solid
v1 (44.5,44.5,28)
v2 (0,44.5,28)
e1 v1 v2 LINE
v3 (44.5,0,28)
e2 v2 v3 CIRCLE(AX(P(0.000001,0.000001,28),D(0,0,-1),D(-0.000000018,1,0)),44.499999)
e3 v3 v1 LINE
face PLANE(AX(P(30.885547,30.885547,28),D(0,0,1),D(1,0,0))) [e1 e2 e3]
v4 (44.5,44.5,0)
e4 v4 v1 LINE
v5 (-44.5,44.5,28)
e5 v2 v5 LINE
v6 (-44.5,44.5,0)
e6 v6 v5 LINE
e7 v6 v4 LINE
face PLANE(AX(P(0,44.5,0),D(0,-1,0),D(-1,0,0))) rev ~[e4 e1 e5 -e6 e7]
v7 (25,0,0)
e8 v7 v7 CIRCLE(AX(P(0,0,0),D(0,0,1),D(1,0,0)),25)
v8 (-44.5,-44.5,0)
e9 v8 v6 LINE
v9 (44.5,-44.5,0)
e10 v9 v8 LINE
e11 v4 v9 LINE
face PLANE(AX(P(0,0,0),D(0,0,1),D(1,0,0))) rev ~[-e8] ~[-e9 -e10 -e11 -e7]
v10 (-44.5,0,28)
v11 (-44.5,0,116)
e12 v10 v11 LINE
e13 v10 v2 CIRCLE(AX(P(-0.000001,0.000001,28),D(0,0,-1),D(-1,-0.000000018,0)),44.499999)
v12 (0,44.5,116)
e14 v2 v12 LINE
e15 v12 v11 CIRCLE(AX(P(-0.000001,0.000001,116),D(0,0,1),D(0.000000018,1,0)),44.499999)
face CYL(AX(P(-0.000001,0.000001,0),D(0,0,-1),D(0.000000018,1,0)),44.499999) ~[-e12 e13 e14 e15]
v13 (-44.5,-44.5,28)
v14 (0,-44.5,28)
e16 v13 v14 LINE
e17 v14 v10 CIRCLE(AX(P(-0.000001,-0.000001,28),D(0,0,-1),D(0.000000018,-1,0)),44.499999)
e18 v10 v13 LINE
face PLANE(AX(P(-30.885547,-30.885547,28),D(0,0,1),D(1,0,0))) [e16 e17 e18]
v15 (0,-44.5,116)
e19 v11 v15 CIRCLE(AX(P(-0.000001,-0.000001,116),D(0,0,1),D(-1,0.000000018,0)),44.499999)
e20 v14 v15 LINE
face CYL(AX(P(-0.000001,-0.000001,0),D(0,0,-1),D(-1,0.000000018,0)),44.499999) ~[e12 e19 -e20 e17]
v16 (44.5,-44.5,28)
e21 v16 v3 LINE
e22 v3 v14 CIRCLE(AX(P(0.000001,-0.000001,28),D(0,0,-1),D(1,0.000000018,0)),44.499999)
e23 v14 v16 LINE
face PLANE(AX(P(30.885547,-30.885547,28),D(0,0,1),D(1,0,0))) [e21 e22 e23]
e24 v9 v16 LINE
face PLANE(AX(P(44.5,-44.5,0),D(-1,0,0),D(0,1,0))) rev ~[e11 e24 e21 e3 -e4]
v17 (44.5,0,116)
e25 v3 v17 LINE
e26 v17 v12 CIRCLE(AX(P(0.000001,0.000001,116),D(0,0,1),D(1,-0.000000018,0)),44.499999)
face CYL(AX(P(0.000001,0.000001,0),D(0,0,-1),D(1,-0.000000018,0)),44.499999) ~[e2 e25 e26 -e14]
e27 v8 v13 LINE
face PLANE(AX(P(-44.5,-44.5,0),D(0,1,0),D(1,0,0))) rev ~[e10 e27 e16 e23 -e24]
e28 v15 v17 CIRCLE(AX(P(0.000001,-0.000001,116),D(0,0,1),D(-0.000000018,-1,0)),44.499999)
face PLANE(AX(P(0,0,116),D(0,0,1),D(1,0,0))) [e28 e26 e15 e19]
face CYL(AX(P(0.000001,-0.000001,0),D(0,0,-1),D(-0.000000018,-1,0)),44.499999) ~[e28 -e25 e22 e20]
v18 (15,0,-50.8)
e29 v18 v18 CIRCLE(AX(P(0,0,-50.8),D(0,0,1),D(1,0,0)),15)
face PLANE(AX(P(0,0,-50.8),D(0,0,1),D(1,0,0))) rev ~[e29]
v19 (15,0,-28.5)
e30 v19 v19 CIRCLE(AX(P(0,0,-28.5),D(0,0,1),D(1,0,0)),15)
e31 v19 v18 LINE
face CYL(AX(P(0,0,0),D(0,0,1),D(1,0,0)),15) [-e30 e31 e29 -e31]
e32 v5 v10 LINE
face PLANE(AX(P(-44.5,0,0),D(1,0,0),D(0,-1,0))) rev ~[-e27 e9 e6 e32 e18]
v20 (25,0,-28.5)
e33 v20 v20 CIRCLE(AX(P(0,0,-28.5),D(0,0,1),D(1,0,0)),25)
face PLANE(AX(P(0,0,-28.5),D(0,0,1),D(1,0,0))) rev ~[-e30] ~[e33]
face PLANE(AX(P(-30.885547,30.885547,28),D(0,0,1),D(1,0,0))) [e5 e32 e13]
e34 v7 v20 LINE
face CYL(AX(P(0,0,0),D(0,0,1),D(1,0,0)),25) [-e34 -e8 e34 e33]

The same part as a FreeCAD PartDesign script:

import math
import FreeCAD as App
import Part
import Sketcher

doc = App.newDocument("Part")
body = doc.addObject("PartDesign::Body", "Body")
body.AllowCompound = True

# Sketch on XY plane
sketch1 = body.newObject("Sketcher::SketchObject", "Sketch")
sketch1.AttachmentSupport = (doc.getObject("XY_Plane"), [""])
sketch1.MapMode = "FlatFace"
sketch1.addGeometry([
    Part.LineSegment(App.Vector(0, -44, 0), App.Vector(44, -44, 0)),  # 0
    Part.LineSegment(App.Vector(44, -44, 0), App.Vector(44, 0, 0)),  # 1
    Part.ArcOfCircle(Part.Circle(App.Vector(0, 0, 0), App.Vector(0, 0, 1), 44), math.radians(-90), math.radians(0)),  # 2
    Part.LineSegment(App.Vector(-44, -44, 0), App.Vector(0, -44, 0)),  # 3
    Part.ArcOfCircle(Part.Circle(App.Vector(0, 0, 0), App.Vector(0, 0, 1), 44), math.radians(180), math.radians(270)),  # 4
    Part.LineSegment(App.Vector(-44, 0, 0), App.Vector(-44, -44, 0)),  # 5
    Part.ArcOfCircle(Part.Circle(App.Vector(0, 0, 0), App.Vector(0, 0, 1), 44), math.radians(0), math.radians(90)),  # 6
    Part.LineSegment(App.Vector(44, 0, 0), App.Vector(44, 44, 0)),  # 7
    Part.LineSegment(App.Vector(44, 44, 0), App.Vector(0, 44, 0)),  # 8
    Part.LineSegment(App.Vector(-44, 44, 0), App.Vector(-44, 0, 0)),  # 9
    Part.ArcOfCircle(Part.Circle(App.Vector(0, 0, 0), App.Vector(0, 0, 1), 44), math.radians(90), math.radians(180)),  # 10
    Part.LineSegment(App.Vector(0, 44, 0), App.Vector(-44, 44, 0)),  # 11
    Part.Circle(App.Vector(0, 0, 0), App.Vector(0, 0, 1), 25),  # 12
    Part.Circle(App.Vector(0, 0, 0), App.Vector(0, 0, 1), 15),  # 13
], False)
sketch1.addConstraint([
    Sketcher.Constraint("Coincident", 0, 2, 1, 1),
    Sketcher.Constraint("Tangent", 1, 2, 2, 2),
    Sketcher.Constraint("Tangent", 2, 1, 0, 1),
    Sketcher.Constraint("Tangent", 3, 2, 4, 2),
    Sketcher.Constraint("Tangent", 4, 1, 5, 1),
    Sketcher.Constraint("Coincident", 5, 2, 3, 1),
    Sketcher.Constraint("Tangent", 6, 1, 7, 1),
    Sketcher.Constraint("Coincident", 7, 2, 8, 1),
    Sketcher.Constraint("Tangent", 8, 2, 6, 2),
    Sketcher.Constraint("Tangent", 9, 2, 10, 2),
    Sketcher.Constraint("Tangent", 10, 1, 11, 1),
    Sketcher.Constraint("Coincident", 11, 2, 9, 1),
    Sketcher.Constraint("Horizontal", 0),
    Sketcher.Constraint("Vertical", 1),
    Sketcher.Constraint("Horizontal", 3),
    Sketcher.Constraint("Vertical", 5),
    Sketcher.Constraint("Vertical", 7),
    Sketcher.Constraint("Horizontal", 8),
    Sketcher.Constraint("Vertical", 9),
    Sketcher.Constraint("Horizontal", 11),
    Sketcher.Constraint("Coincident", 2, 3, -1, 1),
    Sketcher.Constraint("Coincident", 4, 3, -1, 1),
    Sketcher.Constraint("Coincident", 6, 3, -1, 1),
    Sketcher.Constraint("Coincident", 10, 3, -1, 1),
    Sketcher.Constraint("Coincident", 12, 3, -1, 1),
    Sketcher.Constraint("Coincident", 13, 3, -1, 1),
    Sketcher.Constraint("Equal", 2, 4),
    Sketcher.Constraint("Equal", 4, 6),
    Sketcher.Constraint("Equal", 6, 10),
    Sketcher.Constraint("Diameter", 12, 50.0),
    Sketcher.Constraint("Diameter", 13, 30.0),
    Sketcher.Constraint("Radius", 2, 44.499999),
])
pad1 = body.newObject("PartDesign::Pad", "Pad")
pad1.Profile = sketch1
pad1.Length = 28

# Sketch on XY plane
sketch2 = body.newObject("Sketcher::SketchObject", "Sketch001")
sketch2.AttachmentSupport = (doc.getObject("XY_Plane"), [""])
sketch2.MapMode = "FlatFace"
sketch2.addGeometry([
    Part.ArcOfCircle(Part.Circle(App.Vector(0, 0, 0), App.Vector(0, 0, 1), 44), math.radians(180), math.radians(270)),
    Part.ArcOfCircle(Part.Circle(App.Vector(0, 0, 0), App.Vector(0, 0, 1), 44), math.radians(-90), math.radians(0)),
    Part.ArcOfCircle(Part.Circle(App.Vector(0, 0, 0), App.Vector(0, 0, 1), 44), math.radians(0), math.radians(90)),
    Part.ArcOfCircle(Part.Circle(App.Vector(0, 0, 0), App.Vector(0, 0, 1), 44), math.radians(90), math.radians(180)),
], False)
sketch2.addConstraint([
    Sketcher.Constraint("Tangent", 0, 2, 1, 1),
    Sketcher.Constraint("Tangent", 1, 2, 2, 1),
    Sketcher.Constraint("Tangent", 2, 2, 3, 1),
    Sketcher.Constraint("Tangent", 3, 2, 0, 1),
    Sketcher.Constraint("Coincident", 0, 3, -1, 1),
    Sketcher.Constraint("Equal", 0, 1),
    Sketcher.Constraint("PointOnObject", 0, 2, -2),
    Sketcher.Constraint("PointOnObject", 1, 2, -1),
    Sketcher.Constraint("PointOnObject", 2, 2, -2),
    Sketcher.Constraint("PointOnObject", 3, 2, -1),
    Sketcher.Constraint("Radius", 0, 44.499999),
])
pad2 = body.newObject("PartDesign::Pad", "Pad001")
pad2.Profile = sketch2
pad2.Length = 116

# Sketch on XY plane
sketch3 = body.newObject("Sketcher::SketchObject", "Sketch002")
sketch3.AttachmentSupport = (doc.getObject("XY_Plane"), [""])
sketch3.MapMode = "FlatFace"
sketch3.addGeometry([
    Part.Circle(App.Vector(0, 0, 0), App.Vector(0, 0, 1), 25),
    Part.Circle(App.Vector(0, 0, 0), App.Vector(0, 0, 1), 15),
], False)
sketch3.addConstraint([
    Sketcher.Constraint("Coincident", 0, 3, -1, 1),
    Sketcher.Constraint("Coincident", 1, 3, -1, 1),
    Sketcher.Constraint("Diameter", 0, 50.0),
    Sketcher.Constraint("Diameter", 1, 30.0),
])
pad3 = body.newObject("PartDesign::Pad", "Pad002")
pad3.Profile = sketch3
pad3.Length = 28.5
pad3.Reversed = True

# Sketch on XY plane
sketch4 = body.newObject("Sketcher::SketchObject", "Sketch003")
sketch4.AttachmentSupport = (doc.getObject("XY_Plane"), [""])
sketch4.MapMode = "FlatFace"
sketch4.addGeometry(Part.Circle(App.Vector(0, 0, 0), App.Vector(0, 0, 1), 15), False)
sketch4.addConstraint([
    Sketcher.Constraint("Coincident", 0, 3, -1, 1),
    Sketcher.Constraint("Diameter", 0, 30.0),
])
pad4 = body.newObject("PartDesign::Pad", "Pad003")
pad4.Profile = sketch4
pad4.Length = 50.8
pad4.Reversed = True

doc.recompute()
